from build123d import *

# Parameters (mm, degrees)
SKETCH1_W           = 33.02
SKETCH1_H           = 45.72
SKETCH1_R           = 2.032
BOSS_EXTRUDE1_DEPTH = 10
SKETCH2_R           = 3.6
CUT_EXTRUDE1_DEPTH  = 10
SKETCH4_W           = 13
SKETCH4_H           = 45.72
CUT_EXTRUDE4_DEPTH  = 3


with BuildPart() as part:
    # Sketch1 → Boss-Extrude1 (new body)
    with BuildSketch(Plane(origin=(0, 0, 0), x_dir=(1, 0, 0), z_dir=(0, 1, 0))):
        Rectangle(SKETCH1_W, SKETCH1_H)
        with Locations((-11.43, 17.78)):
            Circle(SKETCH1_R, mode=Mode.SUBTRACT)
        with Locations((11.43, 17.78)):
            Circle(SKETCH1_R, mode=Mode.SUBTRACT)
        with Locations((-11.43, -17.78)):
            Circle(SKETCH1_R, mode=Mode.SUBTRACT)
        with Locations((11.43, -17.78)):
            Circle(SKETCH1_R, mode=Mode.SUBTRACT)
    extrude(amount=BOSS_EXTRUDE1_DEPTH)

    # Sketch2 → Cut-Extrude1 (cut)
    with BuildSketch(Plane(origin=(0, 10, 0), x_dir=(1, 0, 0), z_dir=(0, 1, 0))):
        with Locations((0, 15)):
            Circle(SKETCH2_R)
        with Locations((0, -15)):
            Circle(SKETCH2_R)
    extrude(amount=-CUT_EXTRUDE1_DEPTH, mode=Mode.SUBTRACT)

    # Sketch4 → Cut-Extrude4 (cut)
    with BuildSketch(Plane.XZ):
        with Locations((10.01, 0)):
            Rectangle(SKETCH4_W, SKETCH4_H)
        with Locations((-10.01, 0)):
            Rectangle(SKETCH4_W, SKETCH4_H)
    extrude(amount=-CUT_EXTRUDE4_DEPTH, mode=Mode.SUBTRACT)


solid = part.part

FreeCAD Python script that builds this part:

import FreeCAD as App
import Part
import Sketcher

V = App.Vector

doc = App.newDocument("Part")
body = doc.addObject("PartDesign::Body", "Body")

sketch1 = body.newObject("Sketcher::SketchObject", "Sketch")
sketch1.AttachmentSupport = (doc.getObject("XZ_Plane"), [""])
sketch1.MapMode = "FlatFace"
sketch1.addGeometry([
    Part.LineSegment(V(-16.51, -22.86, 0), V(-16.51, 22.86, 0)),
    Part.LineSegment(V(-16.51, 22.86, 0), V(16.51, 22.86, 0)),
    Part.LineSegment(V(16.51, 22.86, 0), V(16.51, -22.86, 0)),
    Part.LineSegment(V(16.51, -22.86, 0), V(-16.51, -22.86, 0)),
    Part.Circle(V(-11.43, 17.78, 0), V(0, 0, 1), 2.032),
    Part.Circle(V(11.43, 17.78, 0), V(0, 0, 1), 2.032),
    Part.Circle(V(-11.43, -17.78, 0), V(0, 0, 1), 2.032),
    Part.Circle(V(11.43, -17.78, 0), V(0, 0, 1), 2.032),
], False)
sketch1.addConstraint([
    Sketcher.Constraint("Coincident", 0, 2, 1, 1),
    Sketcher.Constraint("Coincident", 1, 2, 2, 1),
    Sketcher.Constraint("Coincident", 2, 2, 3, 1),
    Sketcher.Constraint("Coincident", 3, 2, 0, 1),
    Sketcher.Constraint("Vertical", 0),
    Sketcher.Constraint("Horizontal", 1),
    Sketcher.Constraint("Vertical", 2),
    Sketcher.Constraint("Horizontal", 3),
    Sketcher.Constraint("Equal", 4, 5),
    Sketcher.Constraint("Equal", 5, 6),
    Sketcher.Constraint("Equal", 6, 7),
    Sketcher.Constraint("Symmetric", 5, 3, 6, 3, -1, 1),
    Sketcher.Constraint("Symmetric", 4, 3, 7, 3, -1, 1),
    Sketcher.Constraint("Symmetric", 0, 2, 2, 2, -1, 1),
    Sketcher.Constraint("Symmetric", 4, 3, 5, 3, -2),
    Sketcher.Constraint("Diameter", 4, 4.064),
    Sketcher.Constraint("DistanceX", 1, 1, 1, 2, 33.02),
    Sketcher.Constraint("DistanceY", 0, 1, 0, 2, 45.72),
    Sketcher.Constraint("DistanceX", 4, 3, -1, 1, 11.43),
    Sketcher.Constraint("DistanceY", -1, 1, 4, 3, 17.78),
])
pad1 = body.newObject("PartDesign::Pad", "Pad")
pad1.Profile = sketch1
pad1.Length = 10
pad1.Reversed = True

sketch2 = body.newObject("Sketcher::SketchObject", "Sketch001")
sketch2.AttachmentSupport = (doc.getObject("XZ_Plane"), [""])
sketch2.MapMode = "FlatFace"
sketch2.AttachmentOffset = App.Placement(V(0, 0, -10), App.Rotation())
sketch2.addGeometry([
    Part.Circle(V(0, -15, 0), V(0, 0, 1), 3.6),
    Part.Circle(V(0, 15, 0), V(0, 0, 1), 3.6),
], False)
sketch2.addConstraint([
    Sketcher.Constraint("Equal", 0, 1),
    Sketcher.Constraint("Symmetric", 0, 3, 1, 3, -1, 1),
    Sketcher.Constraint("PointOnObject", 0, 3, -2),
    Sketcher.Constraint("Diameter", 0, 7.2),
    Sketcher.Constraint("DistanceY", 0, 3, -1, 1, 15.0),
])
pocket1 = body.newObject("PartDesign::Pocket", "Pocket")
pocket1.Profile = sketch2
pocket1.Length = 10
pocket1.Reversed = True

sketch3 = body.newObject("Sketcher::SketchObject", "Sketch002")
sketch3.AttachmentSupport = (doc.getObject("XZ_Plane"), [""])
sketch3.MapMode = "FlatFace"
sketch3.addGeometry([
    Part.LineSegment(V(3.51, 22.86, 0), V(3.51, -22.86, 0)),
    Part.LineSegment(V(3.51, -22.86, 0), V(16.51, -22.86, 0)),
    Part.LineSegment(V(16.51, -22.86, 0), V(16.51, 22.86, 0)),
    Part.LineSegment(V(16.51, 22.86, 0), V(3.51, 22.86, 0)),
    Part.LineSegment(V(-16.51, 22.86, 0), V(-16.51, -22.86, 0)),
    Part.LineSegment(V(-16.51, -22.86, 0), V(-3.51, -22.86, 0)),
    Part.LineSegment(V(-3.51, -22.86, 0), V(-3.51, 22.86, 0)),
    Part.LineSegment(V(-3.51, 22.86, 0), V(-16.51, 22.86, 0)),
], False)
sketch3.addConstraint([
    Sketcher.Constraint("Coincident", 0, 2, 1, 1),
    Sketcher.Constraint("Coincident", 1, 2, 2, 1),
    Sketcher.Constraint("Coincident", 2, 2, 3, 1),
    Sketcher.Constraint("Coincident", 3, 2, 0, 1),
    Sketcher.Constraint("Coincident", 4, 2, 5, 1),
    Sketcher.Constraint("Coincident", 5, 2, 6, 1),
    Sketcher.Constraint("Coincident", 6, 2, 7, 1),
    Sketcher.Constraint("Coincident", 7, 2, 4, 1),
    Sketcher.Constraint("Vertical", 0),
    Sketcher.Constraint("Horizontal", 1),
    Sketcher.Constraint("Vertical", 2),
    Sketcher.Constraint("Horizontal", 3),
    Sketcher.Constraint("Vertical", 4),
    Sketcher.Constraint("Horizontal", 5),
    Sketcher.Constraint("Vertical", 6),
    Sketcher.Constraint("Horizontal", 7),
    Sketcher.Constraint("Symmetric", 2, 2, 4, 2, -1, 1),
    Sketcher.Constraint("Symmetric", 0, 2, 6, 2, -1, 1),
    Sketcher.Constraint("Horizontal", 1, 2, 4, 2),
    Sketcher.Constraint("DistanceX", 1, 1, 1, 2, 13.0),
    Sketcher.Constraint("DistanceY", 0, 2, 0, 1, 45.72),
    Sketcher.Constraint("DistanceX", -1, 1, 0, 2, 3.51),
])
pocket2 = body.newObject("PartDesign::Pocket", "Pocket001")
pocket2.Profile = sketch3
pocket2.Length = 3

doc.recompute()
